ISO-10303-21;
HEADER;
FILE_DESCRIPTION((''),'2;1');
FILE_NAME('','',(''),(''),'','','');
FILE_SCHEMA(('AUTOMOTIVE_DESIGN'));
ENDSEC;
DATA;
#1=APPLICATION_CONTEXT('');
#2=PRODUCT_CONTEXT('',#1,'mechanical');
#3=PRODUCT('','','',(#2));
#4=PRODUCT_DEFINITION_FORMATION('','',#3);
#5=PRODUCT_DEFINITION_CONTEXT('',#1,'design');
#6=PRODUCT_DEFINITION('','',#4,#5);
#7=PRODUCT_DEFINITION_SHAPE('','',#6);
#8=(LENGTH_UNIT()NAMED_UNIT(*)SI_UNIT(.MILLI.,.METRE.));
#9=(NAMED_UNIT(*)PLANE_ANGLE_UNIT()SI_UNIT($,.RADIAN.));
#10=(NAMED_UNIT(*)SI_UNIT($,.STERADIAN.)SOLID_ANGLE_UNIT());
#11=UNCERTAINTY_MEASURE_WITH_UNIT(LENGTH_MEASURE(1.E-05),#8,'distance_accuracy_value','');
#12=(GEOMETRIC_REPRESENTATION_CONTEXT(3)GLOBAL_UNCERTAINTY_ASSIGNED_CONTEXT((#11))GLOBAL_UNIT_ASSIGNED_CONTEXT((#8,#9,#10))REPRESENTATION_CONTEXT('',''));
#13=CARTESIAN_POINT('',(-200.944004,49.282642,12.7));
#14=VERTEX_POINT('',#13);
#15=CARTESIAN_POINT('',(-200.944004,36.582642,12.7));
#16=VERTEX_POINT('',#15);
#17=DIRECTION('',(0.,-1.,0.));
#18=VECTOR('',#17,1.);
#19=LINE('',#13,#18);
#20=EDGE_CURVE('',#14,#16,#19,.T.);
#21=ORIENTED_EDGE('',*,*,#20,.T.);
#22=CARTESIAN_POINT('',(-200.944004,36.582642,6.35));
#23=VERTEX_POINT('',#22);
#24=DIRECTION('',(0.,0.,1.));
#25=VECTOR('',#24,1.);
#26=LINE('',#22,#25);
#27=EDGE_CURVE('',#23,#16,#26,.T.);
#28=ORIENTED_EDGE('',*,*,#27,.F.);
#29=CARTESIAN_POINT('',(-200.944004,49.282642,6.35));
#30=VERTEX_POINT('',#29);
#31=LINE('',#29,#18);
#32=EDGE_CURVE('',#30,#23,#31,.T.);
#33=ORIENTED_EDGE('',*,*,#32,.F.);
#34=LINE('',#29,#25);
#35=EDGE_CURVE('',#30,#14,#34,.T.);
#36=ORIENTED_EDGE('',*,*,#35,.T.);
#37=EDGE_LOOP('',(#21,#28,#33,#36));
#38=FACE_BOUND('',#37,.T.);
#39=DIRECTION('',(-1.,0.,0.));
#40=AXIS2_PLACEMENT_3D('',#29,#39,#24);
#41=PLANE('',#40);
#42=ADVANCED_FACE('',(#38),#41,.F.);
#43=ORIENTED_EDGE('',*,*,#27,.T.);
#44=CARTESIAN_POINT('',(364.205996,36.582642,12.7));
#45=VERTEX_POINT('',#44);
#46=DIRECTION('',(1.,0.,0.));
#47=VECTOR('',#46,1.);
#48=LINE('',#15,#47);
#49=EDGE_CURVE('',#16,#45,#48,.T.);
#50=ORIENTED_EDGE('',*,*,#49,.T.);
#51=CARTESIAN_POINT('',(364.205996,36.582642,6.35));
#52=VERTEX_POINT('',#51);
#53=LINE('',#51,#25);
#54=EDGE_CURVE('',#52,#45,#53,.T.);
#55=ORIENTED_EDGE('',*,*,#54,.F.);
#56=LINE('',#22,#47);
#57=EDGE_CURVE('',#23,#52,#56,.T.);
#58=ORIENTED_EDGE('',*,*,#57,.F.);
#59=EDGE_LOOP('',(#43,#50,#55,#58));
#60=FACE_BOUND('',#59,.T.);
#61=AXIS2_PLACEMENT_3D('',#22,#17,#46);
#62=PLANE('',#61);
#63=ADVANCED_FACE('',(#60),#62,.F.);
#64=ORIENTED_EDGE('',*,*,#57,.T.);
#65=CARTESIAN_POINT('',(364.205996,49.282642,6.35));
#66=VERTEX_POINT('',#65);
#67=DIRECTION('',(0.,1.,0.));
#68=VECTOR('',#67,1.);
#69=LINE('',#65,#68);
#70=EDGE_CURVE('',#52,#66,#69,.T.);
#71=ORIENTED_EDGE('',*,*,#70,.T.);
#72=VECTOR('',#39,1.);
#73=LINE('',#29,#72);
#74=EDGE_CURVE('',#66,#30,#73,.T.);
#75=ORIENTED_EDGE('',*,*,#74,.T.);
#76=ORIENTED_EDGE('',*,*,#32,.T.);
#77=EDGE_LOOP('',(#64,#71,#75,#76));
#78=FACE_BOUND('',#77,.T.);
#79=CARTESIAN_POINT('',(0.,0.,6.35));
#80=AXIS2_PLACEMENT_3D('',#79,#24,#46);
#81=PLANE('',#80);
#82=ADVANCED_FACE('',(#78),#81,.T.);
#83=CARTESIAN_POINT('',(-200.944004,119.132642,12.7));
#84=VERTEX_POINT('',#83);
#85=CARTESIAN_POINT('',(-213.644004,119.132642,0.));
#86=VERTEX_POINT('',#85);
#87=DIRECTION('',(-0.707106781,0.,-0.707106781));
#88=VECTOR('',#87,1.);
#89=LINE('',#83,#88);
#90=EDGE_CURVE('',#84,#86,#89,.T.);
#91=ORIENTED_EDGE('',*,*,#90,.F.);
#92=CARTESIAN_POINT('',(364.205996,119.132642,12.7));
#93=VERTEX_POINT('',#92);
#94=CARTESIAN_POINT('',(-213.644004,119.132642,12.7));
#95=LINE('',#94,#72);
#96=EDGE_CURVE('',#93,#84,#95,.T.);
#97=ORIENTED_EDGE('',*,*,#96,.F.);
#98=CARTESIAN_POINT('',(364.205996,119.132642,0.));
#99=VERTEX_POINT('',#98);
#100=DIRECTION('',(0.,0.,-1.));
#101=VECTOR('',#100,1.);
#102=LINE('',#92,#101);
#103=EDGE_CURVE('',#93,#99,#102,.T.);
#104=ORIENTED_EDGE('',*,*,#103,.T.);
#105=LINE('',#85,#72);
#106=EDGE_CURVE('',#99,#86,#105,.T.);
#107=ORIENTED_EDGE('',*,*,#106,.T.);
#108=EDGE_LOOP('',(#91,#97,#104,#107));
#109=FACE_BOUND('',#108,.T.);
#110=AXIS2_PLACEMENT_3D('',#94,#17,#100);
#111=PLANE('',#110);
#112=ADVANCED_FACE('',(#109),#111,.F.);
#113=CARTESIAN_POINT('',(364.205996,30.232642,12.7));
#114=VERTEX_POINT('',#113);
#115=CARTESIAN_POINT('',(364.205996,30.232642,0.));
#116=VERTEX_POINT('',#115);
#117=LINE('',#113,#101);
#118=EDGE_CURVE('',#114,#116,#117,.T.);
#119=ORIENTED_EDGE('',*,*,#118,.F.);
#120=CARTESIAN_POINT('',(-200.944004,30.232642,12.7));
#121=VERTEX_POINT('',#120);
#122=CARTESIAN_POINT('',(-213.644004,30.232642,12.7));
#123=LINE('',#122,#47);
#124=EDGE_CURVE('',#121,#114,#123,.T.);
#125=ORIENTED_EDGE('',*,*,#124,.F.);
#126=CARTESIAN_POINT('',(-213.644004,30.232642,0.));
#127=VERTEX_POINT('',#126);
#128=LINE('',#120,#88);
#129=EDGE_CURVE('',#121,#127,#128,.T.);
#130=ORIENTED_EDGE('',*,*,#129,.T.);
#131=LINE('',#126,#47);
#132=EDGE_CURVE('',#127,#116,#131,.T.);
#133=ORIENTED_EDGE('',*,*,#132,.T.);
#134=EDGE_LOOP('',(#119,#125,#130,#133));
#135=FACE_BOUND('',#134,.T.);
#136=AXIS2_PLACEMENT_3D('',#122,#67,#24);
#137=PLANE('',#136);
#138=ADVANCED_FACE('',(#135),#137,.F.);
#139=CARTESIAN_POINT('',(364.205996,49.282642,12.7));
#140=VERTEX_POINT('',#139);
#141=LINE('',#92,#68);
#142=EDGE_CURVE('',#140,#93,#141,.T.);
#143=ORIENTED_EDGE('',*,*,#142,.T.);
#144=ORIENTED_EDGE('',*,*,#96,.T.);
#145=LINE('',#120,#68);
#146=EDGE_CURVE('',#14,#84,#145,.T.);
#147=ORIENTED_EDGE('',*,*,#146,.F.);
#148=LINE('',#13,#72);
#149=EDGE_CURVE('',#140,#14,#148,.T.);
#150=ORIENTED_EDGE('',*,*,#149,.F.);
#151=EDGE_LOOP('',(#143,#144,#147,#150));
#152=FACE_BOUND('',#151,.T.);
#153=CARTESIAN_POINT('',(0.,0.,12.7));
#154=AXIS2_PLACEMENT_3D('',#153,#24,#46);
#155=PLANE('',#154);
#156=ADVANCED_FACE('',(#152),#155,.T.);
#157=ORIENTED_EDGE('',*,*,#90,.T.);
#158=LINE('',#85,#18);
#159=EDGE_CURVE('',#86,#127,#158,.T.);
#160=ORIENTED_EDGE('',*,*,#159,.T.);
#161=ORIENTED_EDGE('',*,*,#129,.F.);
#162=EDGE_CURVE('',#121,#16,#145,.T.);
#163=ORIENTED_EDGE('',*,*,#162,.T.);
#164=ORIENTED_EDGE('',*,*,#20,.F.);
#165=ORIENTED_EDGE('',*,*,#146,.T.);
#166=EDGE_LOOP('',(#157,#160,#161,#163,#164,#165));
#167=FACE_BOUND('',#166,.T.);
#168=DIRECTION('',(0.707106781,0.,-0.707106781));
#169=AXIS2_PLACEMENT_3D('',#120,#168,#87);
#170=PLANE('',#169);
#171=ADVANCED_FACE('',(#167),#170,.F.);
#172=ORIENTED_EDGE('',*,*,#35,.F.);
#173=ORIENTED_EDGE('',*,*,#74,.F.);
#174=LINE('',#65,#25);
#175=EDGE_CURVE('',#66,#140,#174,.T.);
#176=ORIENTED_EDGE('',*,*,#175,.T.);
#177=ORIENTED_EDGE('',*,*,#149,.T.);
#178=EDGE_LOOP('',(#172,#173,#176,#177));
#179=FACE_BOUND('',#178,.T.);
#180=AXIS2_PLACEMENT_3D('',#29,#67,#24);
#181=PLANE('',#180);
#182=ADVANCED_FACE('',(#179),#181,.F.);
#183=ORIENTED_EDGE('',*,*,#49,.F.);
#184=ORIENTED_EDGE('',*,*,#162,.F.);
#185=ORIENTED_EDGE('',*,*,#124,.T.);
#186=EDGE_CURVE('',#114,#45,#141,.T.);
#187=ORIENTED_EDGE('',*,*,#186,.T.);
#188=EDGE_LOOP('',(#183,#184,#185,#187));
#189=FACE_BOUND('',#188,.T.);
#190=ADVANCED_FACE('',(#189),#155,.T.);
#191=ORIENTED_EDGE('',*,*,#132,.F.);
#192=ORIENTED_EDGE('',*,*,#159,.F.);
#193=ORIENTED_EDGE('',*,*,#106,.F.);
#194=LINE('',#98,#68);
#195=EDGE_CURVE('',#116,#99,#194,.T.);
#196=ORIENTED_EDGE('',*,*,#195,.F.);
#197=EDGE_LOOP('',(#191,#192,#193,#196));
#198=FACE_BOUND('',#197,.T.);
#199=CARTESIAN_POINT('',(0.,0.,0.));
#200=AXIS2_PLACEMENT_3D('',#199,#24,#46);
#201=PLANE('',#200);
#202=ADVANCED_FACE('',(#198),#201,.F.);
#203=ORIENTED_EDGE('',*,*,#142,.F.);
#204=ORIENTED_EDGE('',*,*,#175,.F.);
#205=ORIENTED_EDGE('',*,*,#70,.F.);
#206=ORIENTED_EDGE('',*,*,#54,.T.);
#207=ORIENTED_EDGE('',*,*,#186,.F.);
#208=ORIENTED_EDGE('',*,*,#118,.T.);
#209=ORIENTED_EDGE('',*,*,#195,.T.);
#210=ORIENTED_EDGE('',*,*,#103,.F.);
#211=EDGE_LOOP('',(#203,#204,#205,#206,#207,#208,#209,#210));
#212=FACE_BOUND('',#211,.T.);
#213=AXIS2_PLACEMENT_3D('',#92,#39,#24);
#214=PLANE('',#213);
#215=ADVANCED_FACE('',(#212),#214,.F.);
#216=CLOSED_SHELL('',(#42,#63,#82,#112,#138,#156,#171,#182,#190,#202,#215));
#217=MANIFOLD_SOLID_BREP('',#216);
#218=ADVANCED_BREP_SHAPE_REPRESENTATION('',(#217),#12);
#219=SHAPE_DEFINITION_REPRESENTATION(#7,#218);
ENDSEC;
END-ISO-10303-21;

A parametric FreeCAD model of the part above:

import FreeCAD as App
import Part
import Sketcher
from FreeCAD import Vector
Q = App.Units.Quantity

doc = App.newDocument("Part")
body = doc.addObject("PartDesign::Body", "Body")

# Sketch on XY plane
sketch1 = doc.addObject("Sketcher::SketchObject", "Sketch")
body.addObject(sketch1)
sketch1.AttachmentSupport = (doc.XY_Plane, [""])
sketch1.MapMode = "FlatFace"
sketch1.addGeometry([
    Part.LineSegment(Vector(-214, 119, 0), Vector(-214, 30, 0)),
    Part.LineSegment(Vector(-214, 30, 0), Vector(364, 30, 0)),
    Part.LineSegment(Vector(364, 30, 0), Vector(364, 119, 0)),
    Part.LineSegment(Vector(364, 119, 0), Vector(-214, 119, 0)),
], False)
sketch1.addConstraint([
    Sketcher.Constraint("Coincident", 0, 2, 1, 1),
    Sketcher.Constraint("Coincident", 1, 2, 2, 1),
    Sketcher.Constraint("Coincident", 2, 2, 3, 1),
    Sketcher.Constraint("Coincident", 3, 2, 0, 1),
    Sketcher.Constraint("Vertical", 0),
    Sketcher.Constraint("Horizontal", 1),
    Sketcher.Constraint("Vertical", 2),
    Sketcher.Constraint("Horizontal", 3),
    Sketcher.Constraint("DistanceY", 0, 2, 0, 1, Q("3.5 in")),
    Sketcher.Constraint("DistanceX", 1, 1, 1, 2, Q("22.75 in")),
    Sketcher.Constraint("DistanceX", 0, 2, -1, 1, Q("213.644004 mm")),
    Sketcher.Constraint("DistanceY", -1, 1, 0, 2, Q("30.232642 mm")),
])
pad1 = doc.addObject("PartDesign::Pad", "Pad")
body.addObject(pad1)
pad1.Profile = sketch1
pad1.Length = Q("0.5 in")

# Sketch on XZ plane
sketch2 = doc.addObject("Sketcher::SketchObject", "Sketch001")
body.addObject(sketch2)
sketch2.AttachmentSupport = (doc.XZ_Plane, [""])
sketch2.MapMode = "FlatFace"
sketch2.AttachmentOffset = App.Placement(Vector(0, 0, -119.132642), App.Rotation())
sketch2.addGeometry([
    Part.LineSegment(Vector(-201, 13, 0), Vector(-214, 0, 0)),
    Part.LineSegment(Vector(-214, 0, 0), Vector(-214, 13, 0)),
    Part.LineSegment(Vector(-214, 13, 0), Vector(-201, 13, 0)),
], False)
sketch2.addConstraint([
    Sketcher.Constraint("Coincident", 0, 2, 1, 1),
    Sketcher.Constraint("Coincident", 1, 2, 2, 1),
    Sketcher.Constraint("Coincident", 2, 2, 0, 1),
    Sketcher.Constraint("Vertical", 1),
    Sketcher.Constraint("Horizontal", 2),
    Sketcher.Constraint("PointOnObject", 0, 2, -1),
    Sketcher.Constraint("Equal", 2, 1),
    Sketcher.Constraint("DistanceX", 2, 1, 2, 2, Q("0.5 in")),
    Sketcher.Constraint("DistanceX", 0, 2, -1, 1, Q("213.644004 mm")),
])
pocket1 = doc.addObject("PartDesign::Pocket", "Pocket")
body.addObject(pocket1)
pocket1.Profile = sketch2
pocket1.Type = "ThroughAll"
pocket1.Reversed = True

# Sketch on XY plane
sketch3 = doc.addObject("Sketcher::SketchObject", "Sketch002")
body.addObject(sketch3)
sketch3.AttachmentSupport = (doc.XY_Plane, [""])
sketch3.MapMode = "FlatFace"
sketch3.AttachmentOffset = App.Placement(Vector(0, 0, 0.5 * 25.4), App.Rotation())
sketch3.addGeometry([
    Part.LineSegment(Vector(-201, 49, 0), Vector(-201, 37, 0)),
    Part.LineSegment(Vector(-201, 37, 0), Vector(364, 37, 0)),
    Part.LineSegment(Vector(364, 37, 0), Vector(364, 49, 0)),
    Part.LineSegment(Vector(364, 49, 0), Vector(-201, 49, 0)),
], False)
sketch3.addConstraint([
    Sketcher.Constraint("Coincident", 0, 2, 1, 1),
    Sketcher.Constraint("Coincident", 1, 2, 2, 1),
    Sketcher.Constraint("Coincident", 2, 2, 3, 1),
    Sketcher.Constraint("Coincident", 3, 2, 0, 1),
    Sketcher.Constraint("Vertical", 0),
    Sketcher.Constraint("Horizontal", 1),
    Sketcher.Constraint("Vertical", 2),
    Sketcher.Constraint("Horizontal", 3),
    Sketcher.Constraint("DistanceY", 0, 2, 0, 1, Q("0.5 in")),
    Sketcher.Constraint("DistanceX", 1, 1, 1, 2, Q("22.25 in")),
    Sketcher.Constraint("DistanceX", 0, 2, -1, 1, Q("200.944004 mm")),
    Sketcher.Constraint("DistanceY", -1, 1, 0, 2, Q("36.582642 mm")),
])
pocket2 = doc.addObject("PartDesign::Pocket", "Pocket001")
body.addObject(pocket2)
pocket2.Profile = sketch3
pocket2.Length = Q("0.25 in")

doc.recompute()
